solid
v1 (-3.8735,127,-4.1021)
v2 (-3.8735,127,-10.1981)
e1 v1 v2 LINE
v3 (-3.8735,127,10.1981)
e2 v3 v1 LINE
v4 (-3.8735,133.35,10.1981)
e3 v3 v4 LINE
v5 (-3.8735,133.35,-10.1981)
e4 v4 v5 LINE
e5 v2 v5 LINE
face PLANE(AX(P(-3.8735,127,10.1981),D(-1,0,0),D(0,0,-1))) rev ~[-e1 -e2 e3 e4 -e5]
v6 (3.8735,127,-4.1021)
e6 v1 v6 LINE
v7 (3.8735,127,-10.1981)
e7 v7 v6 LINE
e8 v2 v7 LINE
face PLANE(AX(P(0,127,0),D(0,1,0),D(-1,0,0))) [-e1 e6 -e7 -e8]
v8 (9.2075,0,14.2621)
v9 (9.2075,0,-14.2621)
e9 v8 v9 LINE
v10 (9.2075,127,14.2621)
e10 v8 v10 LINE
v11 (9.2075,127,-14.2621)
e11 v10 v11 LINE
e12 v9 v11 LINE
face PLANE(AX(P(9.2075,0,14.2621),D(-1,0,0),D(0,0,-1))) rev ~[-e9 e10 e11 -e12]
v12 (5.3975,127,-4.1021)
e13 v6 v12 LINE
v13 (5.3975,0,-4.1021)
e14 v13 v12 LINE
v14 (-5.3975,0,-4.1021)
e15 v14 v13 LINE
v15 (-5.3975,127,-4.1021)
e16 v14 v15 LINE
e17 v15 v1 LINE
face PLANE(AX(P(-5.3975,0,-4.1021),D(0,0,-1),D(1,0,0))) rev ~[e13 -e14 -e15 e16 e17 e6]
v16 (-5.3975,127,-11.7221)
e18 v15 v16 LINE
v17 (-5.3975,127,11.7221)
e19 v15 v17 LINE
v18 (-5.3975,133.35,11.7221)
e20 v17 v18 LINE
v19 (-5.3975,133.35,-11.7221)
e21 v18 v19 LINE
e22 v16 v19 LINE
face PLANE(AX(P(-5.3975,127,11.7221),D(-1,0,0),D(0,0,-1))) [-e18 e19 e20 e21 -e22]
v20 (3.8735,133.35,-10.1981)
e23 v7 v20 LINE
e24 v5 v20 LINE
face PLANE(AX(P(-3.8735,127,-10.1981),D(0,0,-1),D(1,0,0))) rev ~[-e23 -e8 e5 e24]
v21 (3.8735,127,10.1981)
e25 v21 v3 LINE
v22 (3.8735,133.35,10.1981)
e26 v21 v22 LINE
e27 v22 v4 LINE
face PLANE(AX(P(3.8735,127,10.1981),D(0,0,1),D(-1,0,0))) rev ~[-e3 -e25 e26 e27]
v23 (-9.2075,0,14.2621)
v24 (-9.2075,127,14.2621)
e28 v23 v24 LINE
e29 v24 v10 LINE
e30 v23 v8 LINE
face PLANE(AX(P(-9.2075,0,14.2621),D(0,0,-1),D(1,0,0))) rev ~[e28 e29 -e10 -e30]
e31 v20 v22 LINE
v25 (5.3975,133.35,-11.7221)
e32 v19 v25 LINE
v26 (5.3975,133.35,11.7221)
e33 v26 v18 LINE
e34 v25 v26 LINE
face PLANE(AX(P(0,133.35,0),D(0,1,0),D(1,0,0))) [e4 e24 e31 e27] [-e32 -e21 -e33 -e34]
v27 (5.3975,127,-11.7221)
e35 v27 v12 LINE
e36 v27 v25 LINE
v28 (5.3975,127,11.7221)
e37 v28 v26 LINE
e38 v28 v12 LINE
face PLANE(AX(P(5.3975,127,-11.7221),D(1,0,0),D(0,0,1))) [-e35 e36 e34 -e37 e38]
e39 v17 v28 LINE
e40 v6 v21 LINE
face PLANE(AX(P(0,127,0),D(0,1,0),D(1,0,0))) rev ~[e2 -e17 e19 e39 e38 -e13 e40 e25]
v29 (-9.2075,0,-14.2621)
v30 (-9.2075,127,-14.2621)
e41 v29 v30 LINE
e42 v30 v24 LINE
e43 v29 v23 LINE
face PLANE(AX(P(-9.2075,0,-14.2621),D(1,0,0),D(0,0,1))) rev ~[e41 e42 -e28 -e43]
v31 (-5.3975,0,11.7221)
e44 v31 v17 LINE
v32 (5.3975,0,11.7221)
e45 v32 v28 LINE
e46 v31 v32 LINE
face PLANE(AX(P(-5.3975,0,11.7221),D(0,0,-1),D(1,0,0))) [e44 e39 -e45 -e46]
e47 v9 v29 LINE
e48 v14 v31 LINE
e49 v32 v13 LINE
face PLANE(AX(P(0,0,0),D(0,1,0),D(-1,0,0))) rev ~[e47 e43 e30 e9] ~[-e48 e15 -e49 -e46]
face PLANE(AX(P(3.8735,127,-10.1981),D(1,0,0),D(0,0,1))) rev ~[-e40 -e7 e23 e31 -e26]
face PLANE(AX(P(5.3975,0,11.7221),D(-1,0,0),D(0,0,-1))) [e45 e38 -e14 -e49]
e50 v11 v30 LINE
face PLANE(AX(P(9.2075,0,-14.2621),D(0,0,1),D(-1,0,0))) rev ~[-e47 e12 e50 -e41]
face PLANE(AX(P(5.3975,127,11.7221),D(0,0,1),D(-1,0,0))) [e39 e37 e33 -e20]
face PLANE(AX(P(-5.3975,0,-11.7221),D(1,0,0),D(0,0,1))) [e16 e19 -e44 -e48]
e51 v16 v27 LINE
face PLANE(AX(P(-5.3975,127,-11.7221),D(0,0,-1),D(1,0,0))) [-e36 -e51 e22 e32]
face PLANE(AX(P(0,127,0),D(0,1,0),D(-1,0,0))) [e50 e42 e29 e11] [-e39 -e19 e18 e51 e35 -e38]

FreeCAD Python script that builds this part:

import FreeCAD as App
import Part
import Sketcher
Q = App.Units.Quantity


def add_polygon(sketch, points):
    """Adds a closed chain of lines whose ends are joined by coincident constraints."""
    first, n = sketch.GeometryCount, len(points)
    for a, b in zip(points, points[1:] + points[:1]):
        sketch.addGeometry(Part.LineSegment(App.Vector(*a, 0), App.Vector(*b, 0)), False)
    for i in range(n):
        sketch.addConstraint(Sketcher.Constraint("Coincident", first + i, 2, first + (i + 1) % n, 1))

doc = App.newDocument("Part")
params = doc.addObject("Spreadsheet::Sheet", "Params")
for row, (alias, value) in enumerate([
    ("sketch1_width", "0.725 in"),
    ("sketch1_width2", "0.425 in"),
    ("sketch1_height", "1.123 in"),
    ("sketch1_height2", "0.923 in"),
    ("pad1_length", "5 in"),
    ("sketch2_height", "0.3 in"),
    ("sketch2_width", "0.425 in"),
    ("pad2_length", "5 in"),
    ("sketch3_width", "0.425 in"),
    ("sketch3_width2", "0.305 in"),
    ("sketch3_height", "0.923 in"),
    ("sketch3_height2", "0.803 in"),
    ("pad3_length", "0.25 in"),
], start=1):
    params.set(f"A{row}", alias)
    params.set(f"B{row}", "=" + value)
    params.setAlias(f"B{row}", alias)

body = doc.addObject("PartDesign::Body", "Body")

# Sketch on XZ plane
sketch1 = body.newObject("Sketcher::SketchObject", "Sketch")
sketch1.AttachmentSupport = (doc.getObject("XZ_Plane"), [""])
sketch1.MapMode = "FlatFace"
add_polygon(sketch1, [(-9.2075, -14.2621), (-9.2075, 14.2621), (9.2075, 14.2621), (9.2075, -14.2621)])  # lines 0-3
add_polygon(sketch1, [(5.3975, 11.7221), (-5.3975, 11.7221), (-5.3975, -11.7221), (5.3975, -11.7221)])  # lines 4-7
sketch1.addConstraint([
    Sketcher.Constraint("Vertical", 0),
    Sketcher.Constraint("Horizontal", 1),
    Sketcher.Constraint("Vertical", 2),
    Sketcher.Constraint("Horizontal", 3),
    Sketcher.Constraint("Horizontal", 4),
    Sketcher.Constraint("Vertical", 5),
    Sketcher.Constraint("Horizontal", 6),
    Sketcher.Constraint("Vertical", 7),
    Sketcher.Constraint("Symmetric", 0, 2, 2, 2, -1, 1),
    Sketcher.Constraint("Symmetric", 4, 2, 6, 2, -1, 1),
    Sketcher.Constraint("DistanceX", 1, 1, 1, 2, Q("0.725 in")),
    Sketcher.Constraint("DistanceX", 4, 2, 4, 1, Q("0.425 in")),
    Sketcher.Constraint("DistanceY", 0, 1, 0, 2, Q("1.123 in")),
    Sketcher.Constraint("DistanceY", 5, 2, 5, 1, Q("0.923 in")),
])
sketch1.setExpression("Constraints[18]", "Params.sketch1_width")
sketch1.setExpression("Constraints[19]", "Params.sketch1_width2")
sketch1.setExpression("Constraints[20]", "Params.sketch1_height")
sketch1.setExpression("Constraints[21]", "Params.sketch1_height2")
pad1 = body.newObject("PartDesign::Pad", "Pad")
pad1.Profile = sketch1
pad1.setExpression("Length", "Params.pad1_length")
pad1.Reversed = True

# Sketch on XZ plane
sketch2 = body.newObject("Sketcher::SketchObject", "Sketch001")
sketch2.AttachmentSupport = (doc.getObject("XZ_Plane"), [""])
sketch2.MapMode = "FlatFace"
add_polygon(sketch2, [(5.3975, -11.7221), (5.3975, -4.1021), (-5.3975, -4.1021), (-5.3975, -11.7221)])  # lines 0-3
sketch2.addConstraint([
    Sketcher.Constraint("Vertical", 0),
    Sketcher.Constraint("Horizontal", 1),
    Sketcher.Constraint("Vertical", 2),
    Sketcher.Constraint("Horizontal", 3),
    Sketcher.Constraint("DistanceY", 0, 1, 0, 2, Q("0.3 in")),
    Sketcher.Constraint("DistanceX", 1, 2, 1, 1, Q("0.425 in")),
    Sketcher.Constraint("DistanceX", -1, 1, 0, 2, Q("0.2125 in")),
    Sketcher.Constraint("DistanceY", 0, 2, -1, 1, Q("0.1615 in")),
])
sketch2.setExpression("Constraints[8]", "Params.sketch2_height")
sketch2.setExpression("Constraints[9]", "Params.sketch2_width")
pad2 = body.newObject("PartDesign::Pad", "Pad001")
pad2.Profile = sketch2
pad2.setExpression("Length", "Params.pad2_length")
pad2.Reversed = True

# Sketch on XZ plane
sketch3 = body.newObject("Sketcher::SketchObject", "Sketch002")
sketch3.AttachmentSupport = (doc.getObject("XZ_Plane"), [""])
sketch3.MapMode = "FlatFace"
sketch3.AttachmentOffset = App.Placement(App.Vector(0, 0, -5 * 25.4), App.Rotation())
add_polygon(sketch3, [(5.3975, -11.7221), (-5.3975, -11.7221), (-5.3975, 11.7221), (5.3975, 11.7221)])  # lines 0-3
add_polygon(sketch3, [(-3.8735, 10.1981), (-3.8735, -10.1981), (3.8735, -10.1981), (3.8735, 10.1981)])  # lines 4-7
sketch3.addConstraint([
    Sketcher.Constraint("Horizontal", 0),
    Sketcher.Constraint("Vertical", 1),
    Sketcher.Constraint("Horizontal", 2),
    Sketcher.Constraint("Vertical", 3),
    Sketcher.Constraint("Vertical", 4),
    Sketcher.Constraint("Horizontal", 5),
    Sketcher.Constraint("Vertical", 6),
    Sketcher.Constraint("Horizontal", 7),
    Sketcher.Constraint("Symmetric", 0, 2, 2, 2, -1, 1),
    Sketcher.Constraint("Symmetric", 4, 2, 6, 2, -1, 1),
    Sketcher.Constraint("DistanceX", 0, 2, 0, 1, Q("0.425 in")),
    Sketcher.Constraint("DistanceX", 5, 1, 5, 2, Q("0.305 in")),
    Sketcher.Constraint("DistanceY", 1, 1, 1, 2, Q("0.923 in")),
    Sketcher.Constraint("DistanceY", 4, 2, 4, 1, Q("0.803 in")),
])
sketch3.setExpression("Constraints[18]", "Params.sketch3_width")
sketch3.setExpression("Constraints[19]", "Params.sketch3_width2")
sketch3.setExpression("Constraints[20]", "Params.sketch3_height")
sketch3.setExpression("Constraints[21]", "Params.sketch3_height2")
pad3 = body.newObject("PartDesign::Pad", "Pad002")
pad3.Profile = sketch3
pad3.setExpression("Length", "Params.pad3_length")
pad3.Reversed = True

doc.recompute()
